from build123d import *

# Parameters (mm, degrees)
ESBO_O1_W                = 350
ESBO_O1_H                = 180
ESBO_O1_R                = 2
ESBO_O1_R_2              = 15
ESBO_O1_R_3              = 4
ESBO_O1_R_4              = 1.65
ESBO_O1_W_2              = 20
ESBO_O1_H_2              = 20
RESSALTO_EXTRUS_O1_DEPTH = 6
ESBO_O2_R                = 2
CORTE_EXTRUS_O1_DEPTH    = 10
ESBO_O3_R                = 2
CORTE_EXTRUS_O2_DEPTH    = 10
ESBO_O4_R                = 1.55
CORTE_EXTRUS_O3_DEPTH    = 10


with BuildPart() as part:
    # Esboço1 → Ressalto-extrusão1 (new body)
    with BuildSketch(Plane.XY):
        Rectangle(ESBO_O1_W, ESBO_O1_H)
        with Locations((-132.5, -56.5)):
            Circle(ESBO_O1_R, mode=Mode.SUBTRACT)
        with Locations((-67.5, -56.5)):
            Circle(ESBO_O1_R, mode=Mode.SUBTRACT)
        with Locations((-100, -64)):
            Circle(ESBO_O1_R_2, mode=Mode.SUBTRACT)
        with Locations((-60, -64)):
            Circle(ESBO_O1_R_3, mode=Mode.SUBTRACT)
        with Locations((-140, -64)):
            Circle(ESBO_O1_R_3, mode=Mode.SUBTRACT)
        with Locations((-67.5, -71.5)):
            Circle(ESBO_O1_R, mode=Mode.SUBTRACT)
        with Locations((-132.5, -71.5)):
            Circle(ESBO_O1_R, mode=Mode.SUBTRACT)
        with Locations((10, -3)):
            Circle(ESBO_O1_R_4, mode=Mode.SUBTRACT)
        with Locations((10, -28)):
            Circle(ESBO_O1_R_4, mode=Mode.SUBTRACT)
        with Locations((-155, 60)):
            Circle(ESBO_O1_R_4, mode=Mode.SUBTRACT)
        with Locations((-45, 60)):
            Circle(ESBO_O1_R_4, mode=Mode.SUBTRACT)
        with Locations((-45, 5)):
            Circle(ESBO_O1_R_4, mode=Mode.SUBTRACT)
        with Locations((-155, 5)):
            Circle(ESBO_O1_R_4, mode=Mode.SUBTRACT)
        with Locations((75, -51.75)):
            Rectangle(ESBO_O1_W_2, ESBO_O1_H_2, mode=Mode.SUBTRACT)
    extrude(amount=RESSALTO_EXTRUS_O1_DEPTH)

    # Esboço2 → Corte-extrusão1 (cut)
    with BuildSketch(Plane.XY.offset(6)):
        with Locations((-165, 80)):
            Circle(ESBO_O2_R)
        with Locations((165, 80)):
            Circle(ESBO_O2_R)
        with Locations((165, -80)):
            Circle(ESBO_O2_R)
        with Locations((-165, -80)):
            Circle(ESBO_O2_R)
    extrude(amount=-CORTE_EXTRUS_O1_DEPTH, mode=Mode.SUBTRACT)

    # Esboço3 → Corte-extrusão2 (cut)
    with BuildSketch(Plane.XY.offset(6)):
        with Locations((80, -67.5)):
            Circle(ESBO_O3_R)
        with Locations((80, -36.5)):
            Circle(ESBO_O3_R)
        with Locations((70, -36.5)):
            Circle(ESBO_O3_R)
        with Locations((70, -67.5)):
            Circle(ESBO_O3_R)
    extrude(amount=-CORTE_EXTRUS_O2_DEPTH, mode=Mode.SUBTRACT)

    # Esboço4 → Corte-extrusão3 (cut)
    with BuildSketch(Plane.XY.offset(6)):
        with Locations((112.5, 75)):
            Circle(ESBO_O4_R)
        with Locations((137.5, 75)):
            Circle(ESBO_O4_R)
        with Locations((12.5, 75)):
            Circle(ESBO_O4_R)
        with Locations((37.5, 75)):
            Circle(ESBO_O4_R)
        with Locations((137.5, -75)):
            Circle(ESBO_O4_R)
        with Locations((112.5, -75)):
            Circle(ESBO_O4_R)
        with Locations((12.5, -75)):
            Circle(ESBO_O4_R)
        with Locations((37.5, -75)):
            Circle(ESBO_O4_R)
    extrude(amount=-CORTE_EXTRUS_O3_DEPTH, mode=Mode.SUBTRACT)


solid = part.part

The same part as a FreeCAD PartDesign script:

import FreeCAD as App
import Part
import Sketcher

V = App.Vector

doc = App.newDocument("Part")
body = doc.addObject("PartDesign::Body", "Body")

# Sketch on XY plane
sketch1 = body.newObject("Sketcher::SketchObject", "Sketch")
sketch1.AttachmentSupport = (doc.getObject("XY_Plane"), [""])
sketch1.MapMode = "FlatFace"
sketch1.addGeometry(Part.LineSegment(V(-175, 90, 0), V(-175, -90, 0)), False)
sketch1.addGeometry(Part.LineSegment(V(-175, -90, 0), V(175, -90, 0)), False)
sketch1.addGeometry(Part.LineSegment(V(175, -90, 0), V(175, 90, 0)), False)
sketch1.addGeometry(Part.LineSegment(V(175, 90, 0), V(-175, 90, 0)), False)
sketch1.addGeometry(Part.Circle(V(-132.5, -71.5, 0), V(0, 0, 1), 2), False)
sketch1.addGeometry(Part.Circle(V(-140, -64, 0), V(0, 0, 1), 4), False)
sketch1.addGeometry(Part.Circle(V(-100, -64, 0), V(0, 0, 1), 15), False)
sketch1.addGeometry(Part.Circle(V(-132.5, -56.5, 0), V(0, 0, 1), 2), False)
sketch1.addGeometry(Part.Circle(V(-67.5, -71.5, 0), V(0, 0, 1), 2), False)
sketch1.addGeometry(Part.Circle(V(-60, -64, 0), V(0, 0, 1), 4), False)
sketch1.addGeometry(Part.Circle(V(-67.5, -56.5, 0), V(0, 0, 1), 2), False)
sketch1.addGeometry(Part.LineSegment(V(85, -61.8, 0), V(65, -61.8, 0)), False)
sketch1.addGeometry(Part.LineSegment(V(65, -61.8, 0), V(65, -41.8, 0)), False)
sketch1.addGeometry(Part.LineSegment(V(65, -41.8, 0), V(85, -41.8, 0)), False)
sketch1.addGeometry(Part.LineSegment(V(85, -41.8, 0), V(85, -61.8, 0)), False)
sketch1.addGeometry(Part.Circle(V(10, -28, 0), V(0, 0, 1), 1.6), False)
sketch1.addGeometry(Part.Circle(V(-155, 5, 0), V(0, 0, 1), 1.6), False)
sketch1.addGeometry(Part.Circle(V(-45, 5, 0), V(0, 0, 1), 1.6), False)
sketch1.addGeometry(Part.Circle(V(-155, 60, 0), V(0, 0, 1), 1.6), False)
sketch1.addGeometry(Part.Circle(V(-45, 60, 0), V(0, 0, 1), 1.6), False)
sketch1.addGeometry(Part.Circle(V(10, -3, 0), V(0, 0, 1), 1.6), False)
sketch1.addConstraint(Sketcher.Constraint("Coincident", 0, 2, 1, 1))
sketch1.addConstraint(Sketcher.Constraint("Coincident", 1, 2, 2, 1))
sketch1.addConstraint(Sketcher.Constraint("Coincident", 2, 2, 3, 1))
sketch1.addConstraint(Sketcher.Constraint("Coincident", 3, 2, 0, 1))
sketch1.addConstraint(Sketcher.Constraint("Coincident", 11, 2, 12, 1))
sketch1.addConstraint(Sketcher.Constraint("Coincident", 12, 2, 13, 1))
sketch1.addConstraint(Sketcher.Constraint("Coincident", 13, 2, 14, 1))
sketch1.addConstraint(Sketcher.Constraint("Coincident", 14, 2, 11, 1))
sketch1.addConstraint(Sketcher.Constraint("Vertical", 0))
sketch1.addConstraint(Sketcher.Constraint("Horizontal", 1))
sketch1.addConstraint(Sketcher.Constraint("Vertical", 2))
sketch1.addConstraint(Sketcher.Constraint("Horizontal", 3))
sketch1.addConstraint(Sketcher.Constraint("Horizontal", 11))
sketch1.addConstraint(Sketcher.Constraint("Vertical", 12))
sketch1.addConstraint(Sketcher.Constraint("Horizontal", 13))
sketch1.addConstraint(Sketcher.Constraint("Vertical", 14))
sketch1.addConstraint(Sketcher.Constraint("Equal", 4, 7))
sketch1.addConstraint(Sketcher.Constraint("Equal", 7, 8))
sketch1.addConstraint(Sketcher.Constraint("Equal", 5, 9))
sketch1.addConstraint(Sketcher.Constraint("Equal", 8, 10))
sketch1.addConstraint(Sketcher.Constraint("Equal", 15, 16))
sketch1.addConstraint(Sketcher.Constraint("Equal", 16, 17))
sketch1.addConstraint(Sketcher.Constraint("Equal", 17, 18))
sketch1.addConstraint(Sketcher.Constraint("Equal", 18, 19))
sketch1.addConstraint(Sketcher.Constraint("Equal", 19, 20))
sketch1.addConstraint(Sketcher.Constraint("Symmetric", 0, 2, 2, 2, -1, 1))
sketch1.addConstraint(Sketcher.Constraint("Horizontal", 5, 3, 6, 3))
sketch1.addConstraint(Sketcher.Constraint("Horizontal", 4, 3, 8, 3))
sketch1.addConstraint(Sketcher.Constraint("Horizontal", 6, 3, 9, 3))
sketch1.addConstraint(Sketcher.Constraint("Horizontal", 7, 3, 10, 3))
sketch1.addConstraint(Sketcher.Constraint("Horizontal", 16, 3, 17, 3))
sketch1.addConstraint(Sketcher.Constraint("Horizontal", 18, 3, 19, 3))
sketch1.addConstraint(Sketcher.Constraint("Vertical", 4, 3, 7, 3))
sketch1.addConstraint(Sketcher.Constraint("Vertical", 8, 3, 10, 3))
sketch1.addConstraint(Sketcher.Constraint("Vertical", 16, 3, 18, 3))
sketch1.addConstraint(Sketcher.Constraint("Vertical", 17, 3, 19, 3))
sketch1.addConstraint(Sketcher.Constraint("Vertical", 15, 3, 20, 3))
sketch1.addConstraint(Sketcher.Constraint("Equal", 13, 12))
sketch1.addConstraint(Sketcher.Constraint("Diameter", 4, 4.0))
sketch1.addConstraint(Sketcher.Constraint("Diameter", 5, 8.0))
sketch1.addConstraint(Sketcher.Constraint("Diameter", 6, 30.0))
sketch1.addConstraint(Sketcher.Constraint("Diameter", 15, 3.3))
sketch1.addConstraint(Sketcher.Constraint("DistanceX", 1, 1, 1, 2, 350.0))
sketch1.addConstraint(Sketcher.Constraint("DistanceX", 11, 2, 11, 1, 20.0))
sketch1.addConstraint(Sketcher.Constraint("DistanceY", 0, 2, 0, 1, 180.0))
sketch1.addConstraint(Sketcher.Constraint("DistanceX", 5, 3, -1, 1, 140.0))
sketch1.addConstraint(Sketcher.Constraint("DistanceY", 5, 3, -1, 1, 64.0))
sketch1.addConstraint(Sketcher.Constraint("DistanceX", 6, 3, -1, 1, 100.0))
sketch1.addConstraint(Sketcher.Constraint("DistanceX", 9, 3, -1, 1, 60.0))
sketch1.addConstraint(Sketcher.Constraint("DistanceX", -1, 1, 15, 3, 10.0))
sketch1.addConstraint(Sketcher.Constraint("DistanceY", 15, 3, -1, 1, 28.0))
sketch1.addConstraint(Sketcher.Constraint("DistanceX", 16, 3, -1, 1, 155.0))
sketch1.addConstraint(Sketcher.Constraint("DistanceY", -1, 1, 16, 3, 5.0))
sketch1.addConstraint(Sketcher.Constraint("DistanceX", 17, 3, -1, 1, 45.0))
sketch1.addConstraint(Sketcher.Constraint("DistanceY", -1, 1, 18, 3, 60.0))
sketch1.addConstraint(Sketcher.Constraint("DistanceY", 20, 3, -1, 1, 3.0))
sketch1.addConstraint(Sketcher.Constraint("DistanceX", -1, 1, 11, 2, 65.0))
sketch1.addConstraint(Sketcher.Constraint("DistanceY", 4, 3, 7, 3, 15.0))
sketch1.addConstraint(Sketcher.Constraint("DistanceX", 4, 3, 8, 3, 65.0))
sketch1.addConstraint(Sketcher.Constraint("DistanceX", 4, 3, -1, 1, 132.5))
sketch1.addConstraint(Sketcher.Constraint("DistanceY", 4, 3, -1, 1, 71.5))
sketch1.addConstraint(Sketcher.Constraint("DistanceY", 11, 2, -1, 1, 61.75))
pad1 = body.newObject("PartDesign::Pad", "Pad")
pad1.Profile = sketch1
pad1.Length = 6

# Sketch on XY plane
sketch2 = body.newObject("Sketcher::SketchObject", "Sketch001")
sketch2.AttachmentSupport = (doc.getObject("XY_Plane"), [""])
sketch2.MapMode = "FlatFace"
sketch2.AttachmentOffset = App.Placement(V(0, 0, 6), App.Rotation())
sketch2.addGeometry(Part.Circle(V(-165, 80, 0), V(0, 0, 1), 2), False)
sketch2.addGeometry(Part.Circle(V(165, 80, 0), V(0, 0, 1), 2), False)
sketch2.addGeometry(Part.Circle(V(165, -80, 0), V(0, 0, 1), 2), False)
sketch2.addGeometry(Part.Circle(V(-165, -80, 0), V(0, 0, 1), 2), False)
sketch2.addConstraint(Sketcher.Constraint("Equal", 0, 1))
sketch2.addConstraint(Sketcher.Constraint("Equal", 1, 2))
sketch2.addConstraint(Sketcher.Constraint("Equal", 2, 3))
sketch2.addConstraint(Sketcher.Constraint("Symmetric", 0, 3, 2, 3, -1, 1))
sketch2.addConstraint(Sketcher.Constraint("Symmetric", 1, 3, 3, 3, -1, 1))
sketch2.addConstraint(Sketcher.Constraint("Symmetric", 0, 3, 1, 3, -2))
sketch2.addConstraint(Sketcher.Constraint("Diameter", 0, 4.0))
sketch2.addConstraint(Sketcher.Constraint("DistanceX", 0, 3, -1, 1, 165.0))
sketch2.addConstraint(Sketcher.Constraint("DistanceY", -1, 1, 0, 3, 80.0))
pocket1 = body.newObject("PartDesign::Pocket", "Pocket")
pocket1.Profile = sketch2
pocket1.Length = 10

# Sketch on XY plane
sketch3 = body.newObject("Sketcher::SketchObject", "Sketch002")
sketch3.AttachmentSupport = (doc.getObject("XY_Plane"), [""])
sketch3.MapMode = "FlatFace"
sketch3.AttachmentOffset = App.Placement(V(0, 0, 6), App.Rotation())
sketch3.addGeometry(Part.Circle(V(80, -67.5, 0), V(0, 0, 1), 2), False)
sketch3.addGeometry(Part.Circle(V(80, -36.5, 0), V(0, 0, 1), 2), False)
sketch3.addGeometry(Part.Circle(V(70, -36.5, 0), V(0, 0, 1), 2), False)
sketch3.addGeometry(Part.Circle(V(70, -67.5, 0), V(0, 0, 1), 2), False)
sketch3.addConstraint(Sketcher.Constraint("Equal", 0, 1))
sketch3.addConstraint(Sketcher.Constraint("Equal", 1, 2))
sketch3.addConstraint(Sketcher.Constraint("Equal", 2, 3))
sketch3.addConstraint(Sketcher.Constraint("Horizontal", 1, 3, 2, 3))
sketch3.addConstraint(Sketcher.Constraint("Horizontal", 0, 3, 3, 3))
sketch3.addConstraint(Sketcher.Constraint("Vertical", 0, 3, 1, 3))
sketch3.addConstraint(Sketcher.Constraint("Vertical", 2, 3, 3, 3))
sketch3.addConstraint(Sketcher.Constraint("Diameter", 0, 4.0))
sketch3.addConstraint(Sketcher.Constraint("DistanceX", -1, 1, 0, 3, 80.0))
sketch3.addConstraint(Sketcher.Constraint("DistanceX", -1, 1, 2, 3, 70.0))
sketch3.addConstraint(Sketcher.Constraint("DistanceY", 0, 3, 1, 3, 31.0))
sketch3.addConstraint(Sketcher.Constraint("DistanceY", 0, 3, -1, 1, 67.5))
pocket2 = body.newObject("PartDesign::Pocket", "Pocket001")
pocket2.Profile = sketch3
pocket2.Length = 10

# Sketch on XY plane
sketch4 = body.newObject("Sketcher::SketchObject", "Sketch003")
sketch4.AttachmentSupport = (doc.getObject("XY_Plane"), [""])
sketch4.MapMode = "FlatFace"
sketch4.AttachmentOffset = App.Placement(V(0, 0, 6), App.Rotation())
sketch4.addGeometry(Part.Circle(V(112.5, 75, 0), V(0, 0, 1), 1.6), False)
sketch4.addGeometry(Part.Circle(V(137.5, 75, 0), V(0, 0, 1), 1.6), False)
sketch4.addGeometry(Part.Circle(V(12.5, 75, 0), V(0, 0, 1), 1.6), False)
sketch4.addGeometry(Part.Circle(V(37.5, 75, 0), V(0, 0, 1), 1.6), False)
sketch4.addGeometry(Part.Circle(V(137.5, -75, 0), V(0, 0, 1), 1.6), False)
sketch4.addGeometry(Part.Circle(V(112.5, -75, 0), V(0, 0, 1), 1.6), False)
sketch4.addGeometry(Part.Circle(V(12.5, -75, 0), V(0, 0, 1), 1.6), False)
sketch4.addGeometry(Part.Circle(V(37.5, -75, 0), V(0, 0, 1), 1.6), False)
sketch4.addConstraint(Sketcher.Constraint("Equal", 0, 1))
sketch4.addConstraint(Sketcher.Constraint("Equal", 1, 2))
sketch4.addConstraint(Sketcher.Constraint("Equal", 2, 3))
sketch4.addConstraint(Sketcher.Constraint("Equal", 3, 4))
sketch4.addConstraint(Sketcher.Constraint("Equal", 4, 5))
sketch4.addConstraint(Sketcher.Constraint("Equal", 5, 6))
sketch4.addConstraint(Sketcher.Constraint("Equal", 6, 7))
sketch4.addConstraint(Sketcher.Constraint("Symmetric", 1, 3, 4, 3, -1))
sketch4.addConstraint(Sketcher.Constraint("Symmetric", 0, 3, 5, 3, -1))
sketch4.addConstraint(Sketcher.Constraint("Symmetric", 2, 3, 6, 3, -1))
sketch4.addConstraint(Sketcher.Constraint("Symmetric", 3, 3, 7, 3, -1))
sketch4.addConstraint(Sketcher.Constraint("Horizontal", 0, 3, 1, 3))
sketch4.addConstraint(Sketcher.Constraint("Horizontal", 1, 3, 2, 3))
sketch4.addConstraint(Sketcher.Constraint("Horizontal", 2, 3, 3, 3))
sketch4.addConstraint(Sketcher.Constraint("Diameter", 0, 3.1))
sketch4.addConstraint(Sketcher.Constraint("DistanceY", -1, 1, 0, 3, 75.0))
sketch4.addConstraint(Sketcher.Constraint("DistanceX", 0, 3, 1, 3, 25.0))
sketch4.addConstraint(Sketcher.Constraint("DistanceX", 2, 3, 0, 3, 100.0))
sketch4.addConstraint(Sketcher.Constraint("DistanceX", 2, 3, 3, 3, 25.0))
sketch4.addConstraint(Sketcher.Constraint("DistanceX", -1, 1, 0, 3, 112.5))
pocket3 = body.newObject("PartDesign::Pocket", "Pocket002")
pocket3.Profile = sketch4
pocket3.Length = 10

doc.recompute()
